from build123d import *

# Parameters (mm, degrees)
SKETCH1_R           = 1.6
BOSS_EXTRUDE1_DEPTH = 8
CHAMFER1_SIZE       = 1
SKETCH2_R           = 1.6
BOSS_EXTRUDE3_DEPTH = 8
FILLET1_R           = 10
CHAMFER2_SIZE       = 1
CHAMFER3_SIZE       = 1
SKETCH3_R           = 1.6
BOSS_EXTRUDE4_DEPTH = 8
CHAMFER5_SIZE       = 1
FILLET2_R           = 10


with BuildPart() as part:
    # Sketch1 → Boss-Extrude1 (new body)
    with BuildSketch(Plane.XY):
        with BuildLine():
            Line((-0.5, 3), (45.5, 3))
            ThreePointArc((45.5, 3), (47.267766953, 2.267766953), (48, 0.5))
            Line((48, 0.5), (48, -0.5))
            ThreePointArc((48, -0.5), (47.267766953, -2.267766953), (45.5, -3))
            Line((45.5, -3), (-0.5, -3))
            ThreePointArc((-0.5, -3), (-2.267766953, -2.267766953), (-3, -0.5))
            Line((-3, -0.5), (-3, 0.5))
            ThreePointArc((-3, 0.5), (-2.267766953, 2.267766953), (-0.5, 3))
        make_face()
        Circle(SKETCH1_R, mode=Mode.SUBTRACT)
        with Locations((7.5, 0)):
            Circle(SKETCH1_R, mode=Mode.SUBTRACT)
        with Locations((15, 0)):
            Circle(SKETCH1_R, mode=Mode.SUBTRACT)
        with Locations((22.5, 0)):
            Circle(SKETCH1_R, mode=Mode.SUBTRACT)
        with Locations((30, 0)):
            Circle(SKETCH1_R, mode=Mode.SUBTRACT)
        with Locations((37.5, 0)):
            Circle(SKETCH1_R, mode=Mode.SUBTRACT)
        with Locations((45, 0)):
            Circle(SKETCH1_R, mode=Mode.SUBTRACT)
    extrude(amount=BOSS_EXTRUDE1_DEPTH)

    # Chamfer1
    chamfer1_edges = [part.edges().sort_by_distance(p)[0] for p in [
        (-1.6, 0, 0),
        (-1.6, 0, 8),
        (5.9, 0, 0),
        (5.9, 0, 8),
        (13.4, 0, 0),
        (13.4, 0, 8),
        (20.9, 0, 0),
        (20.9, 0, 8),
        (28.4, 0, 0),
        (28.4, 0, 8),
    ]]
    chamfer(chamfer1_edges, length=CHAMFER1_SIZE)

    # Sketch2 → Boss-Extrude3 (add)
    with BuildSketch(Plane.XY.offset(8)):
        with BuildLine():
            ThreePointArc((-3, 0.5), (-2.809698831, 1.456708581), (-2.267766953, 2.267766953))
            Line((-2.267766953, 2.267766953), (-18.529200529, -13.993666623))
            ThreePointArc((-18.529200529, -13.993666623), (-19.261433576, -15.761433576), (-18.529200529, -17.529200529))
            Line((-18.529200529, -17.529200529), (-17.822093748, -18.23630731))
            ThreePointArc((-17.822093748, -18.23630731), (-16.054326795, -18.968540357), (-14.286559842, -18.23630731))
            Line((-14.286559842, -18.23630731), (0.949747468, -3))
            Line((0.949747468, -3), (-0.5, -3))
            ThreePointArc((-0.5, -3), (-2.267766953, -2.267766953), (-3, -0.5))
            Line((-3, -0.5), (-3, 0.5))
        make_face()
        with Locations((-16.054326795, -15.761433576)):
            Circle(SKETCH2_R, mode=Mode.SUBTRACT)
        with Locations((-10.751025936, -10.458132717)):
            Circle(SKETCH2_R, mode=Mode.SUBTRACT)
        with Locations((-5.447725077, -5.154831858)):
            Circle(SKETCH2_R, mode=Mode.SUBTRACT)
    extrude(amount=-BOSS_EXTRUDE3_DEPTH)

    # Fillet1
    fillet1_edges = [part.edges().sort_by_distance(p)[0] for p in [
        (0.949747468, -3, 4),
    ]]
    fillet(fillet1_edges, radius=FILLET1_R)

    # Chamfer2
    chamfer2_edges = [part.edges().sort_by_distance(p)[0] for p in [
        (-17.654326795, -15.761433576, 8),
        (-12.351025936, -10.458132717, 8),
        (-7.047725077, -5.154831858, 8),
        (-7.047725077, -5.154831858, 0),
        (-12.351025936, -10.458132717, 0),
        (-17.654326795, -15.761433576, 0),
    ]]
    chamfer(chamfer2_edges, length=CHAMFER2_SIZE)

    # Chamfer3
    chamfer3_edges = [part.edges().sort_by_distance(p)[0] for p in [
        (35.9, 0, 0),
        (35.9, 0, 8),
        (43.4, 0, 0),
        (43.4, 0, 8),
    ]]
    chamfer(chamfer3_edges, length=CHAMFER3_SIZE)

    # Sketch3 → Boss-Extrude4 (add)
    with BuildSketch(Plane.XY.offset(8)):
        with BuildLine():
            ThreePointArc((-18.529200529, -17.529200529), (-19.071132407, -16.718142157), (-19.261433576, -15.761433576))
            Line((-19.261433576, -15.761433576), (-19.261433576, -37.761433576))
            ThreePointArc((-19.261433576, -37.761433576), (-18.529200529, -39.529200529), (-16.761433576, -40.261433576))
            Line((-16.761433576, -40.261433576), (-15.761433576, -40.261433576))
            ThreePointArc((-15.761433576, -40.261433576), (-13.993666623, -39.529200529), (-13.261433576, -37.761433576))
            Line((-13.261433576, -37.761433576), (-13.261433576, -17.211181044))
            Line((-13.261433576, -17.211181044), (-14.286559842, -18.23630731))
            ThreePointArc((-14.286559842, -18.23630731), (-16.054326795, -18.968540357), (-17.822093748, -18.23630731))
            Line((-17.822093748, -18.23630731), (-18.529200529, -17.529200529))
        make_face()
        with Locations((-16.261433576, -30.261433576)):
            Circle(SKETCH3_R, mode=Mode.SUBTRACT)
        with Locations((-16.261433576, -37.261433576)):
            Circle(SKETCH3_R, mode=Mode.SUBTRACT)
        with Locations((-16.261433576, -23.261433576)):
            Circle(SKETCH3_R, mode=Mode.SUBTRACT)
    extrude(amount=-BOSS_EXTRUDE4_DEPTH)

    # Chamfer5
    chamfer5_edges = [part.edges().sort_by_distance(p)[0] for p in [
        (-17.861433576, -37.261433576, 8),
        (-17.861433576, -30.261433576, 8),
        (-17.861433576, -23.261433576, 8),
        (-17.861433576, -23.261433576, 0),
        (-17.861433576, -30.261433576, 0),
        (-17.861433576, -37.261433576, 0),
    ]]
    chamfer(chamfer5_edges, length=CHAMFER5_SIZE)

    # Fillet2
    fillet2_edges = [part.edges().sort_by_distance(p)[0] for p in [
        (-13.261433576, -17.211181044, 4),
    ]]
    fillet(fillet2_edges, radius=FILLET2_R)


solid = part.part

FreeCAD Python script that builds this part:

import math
import FreeCAD as App
import Part
import Sketcher
from FreeCAD import Vector
Q = App.Units.Quantity


def edges_at(feature, points):
    """Names of the edges that pass closest to the given points."""
    edges = feature.Shape.Edges
    near = lambda p: min(range(len(edges)), key=lambda i: edges[i].distToShape(Part.Vertex(*p))[0])
    return sorted({f"Edge{near(p) + 1}" for p in points})

doc = App.newDocument("Part")
params = doc.addObject("Spreadsheet::Sheet", "Params")
for row, (alias, value) in enumerate([
    ("sketch1_diameter", "3.2 mm"),
    ("sketch1_radius", "2.5 mm"),
    ("sketch1_width", "46 mm"),
    ("sketch1_height", "1 mm"),
    ("pad1_length", "8 mm"),
    ("chamfer_size", "1 mm"),
    ("sketch2_diameter", "3.2 mm"),
    ("sketch2_radius", "2.5 mm"),
    ("sketch2_height", "1 mm"),
    ("sketch2_length", "1 mm"),
    ("pad2_length", "8 mm"),
    ("fillet_radius", "10 mm"),
    ("chamfer2_size", "1 mm"),
    ("chamfer3_size", "1 mm"),
    ("sketch3_diameter", "3.2 mm"),
    ("sketch3_radius", "2.5 mm"),
    ("sketch3_width", "1 mm"),
    ("sketch3_height", "22 mm"),
    ("sketch3_length", "1 mm"),
    ("pad3_length", "8 mm"),
    ("chamfer4_size", "1 mm"),
    ("fillet2_radius", "10 mm"),
], start=1):
    params.set(f"A{row}", alias)
    params.set(f"B{row}", "=" + value)
    params.setAlias(f"B{row}", alias)

body = doc.addObject("PartDesign::Body", "Body")

# Sketch on XY plane
sketch1 = body.newObject("Sketcher::SketchObject", "Sketch")
sketch1.AttachmentSupport = (doc.getObject("XY_Plane"), [""])
sketch1.MapMode = "FlatFace"
sketch1.addGeometry(Part.LineSegment(Vector(45.5, 3, 0), Vector(-0.5, 3, 0)), False)
sketch1.addGeometry(Part.ArcOfCircle(Part.Circle(Vector(-0.5, 0.5, 0), Vector(0, 0, 1), 2.5), math.radians(90), math.radians(180)), False)
sketch1.addGeometry(Part.LineSegment(Vector(-3, 0.5, 0), Vector(-3, -0.5, 0)), False)
sketch1.addGeometry(Part.ArcOfCircle(Part.Circle(Vector(-0.5, -0.5, 0), Vector(0, 0, 1), 2.5), math.radians(180), math.radians(270)), False)
sketch1.addGeometry(Part.LineSegment(Vector(-0.5, -3, 0), Vector(45.5, -3, 0)), False)
sketch1.addGeometry(Part.ArcOfCircle(Part.Circle(Vector(45.5, -0.5, 0), Vector(0, 0, 1), 2.5), math.radians(-90), math.radians(0)), False)
sketch1.addGeometry(Part.LineSegment(Vector(48, -0.5, 0), Vector(48, 0.5, 0)), False)
sketch1.addGeometry(Part.ArcOfCircle(Part.Circle(Vector(45.5, 0.5, 0), Vector(0, 0, 1), 2.5), math.radians(0), math.radians(90)), False)
sketch1.addGeometry(Part.Circle(Vector(45, 0, 0), Vector(0, 0, 1), 1.6), False)
sketch1.addGeometry(Part.Circle(Vector(37.5, 0, 0), Vector(0, 0, 1), 1.6), False)
sketch1.addGeometry(Part.Circle(Vector(30, 0, 0), Vector(0, 0, 1), 1.6), False)
sketch1.addGeometry(Part.Circle(Vector(22.5, 0, 0), Vector(0, 0, 1), 1.6), False)
sketch1.addGeometry(Part.Circle(Vector(15, 0, 0), Vector(0, 0, 1), 1.6), False)
sketch1.addGeometry(Part.Circle(Vector(7.5, 0, 0), Vector(0, 0, 1), 1.6), False)
sketch1.addGeometry(Part.Circle(Vector(0, 0, 0), Vector(0, 0, 1), 1.6), False)
sketch1.addConstraint(Sketcher.Constraint("Tangent", 0, 2, 1, 1))
sketch1.addConstraint(Sketcher.Constraint("Tangent", 1, 2, 2, 1))
sketch1.addConstraint(Sketcher.Constraint("Tangent", 2, 2, 3, 1))
sketch1.addConstraint(Sketcher.Constraint("Tangent", 3, 2, 4, 1))
sketch1.addConstraint(Sketcher.Constraint("Tangent", 4, 2, 5, 1))
sketch1.addConstraint(Sketcher.Constraint("Tangent", 5, 2, 6, 1))
sketch1.addConstraint(Sketcher.Constraint("Tangent", 6, 2, 7, 1))
sketch1.addConstraint(Sketcher.Constraint("Tangent", 7, 2, 0, 1))
sketch1.addConstraint(Sketcher.Constraint("Horizontal", 0))
sketch1.addConstraint(Sketcher.Constraint("Vertical", 2))
sketch1.addConstraint(Sketcher.Constraint("Horizontal", 4))
sketch1.addConstraint(Sketcher.Constraint("Vertical", 6))
sketch1.addConstraint(Sketcher.Constraint("Coincident", 14, 3, -1, 1))
sketch1.addConstraint(Sketcher.Constraint("Equal", 1, 3))
sketch1.addConstraint(Sketcher.Constraint("Equal", 3, 5))
sketch1.addConstraint(Sketcher.Constraint("Equal", 5, 7))
sketch1.addConstraint(Sketcher.Constraint("Equal", 8, 9))
sketch1.addConstraint(Sketcher.Constraint("Equal", 9, 10))
sketch1.addConstraint(Sketcher.Constraint("Equal", 10, 11))
sketch1.addConstraint(Sketcher.Constraint("Equal", 11, 12))
sketch1.addConstraint(Sketcher.Constraint("Equal", 12, 13))
sketch1.addConstraint(Sketcher.Constraint("Equal", 13, 14))
sketch1.addConstraint(Sketcher.Constraint("PointOnObject", 8, 3, -1))
sketch1.addConstraint(Sketcher.Constraint("PointOnObject", 9, 3, -1))
sketch1.addConstraint(Sketcher.Constraint("PointOnObject", 10, 3, -1))
sketch1.addConstraint(Sketcher.Constraint("PointOnObject", 11, 3, -1))
sketch1.addConstraint(Sketcher.Constraint("PointOnObject", 12, 3, -1))
sketch1.addConstraint(Sketcher.Constraint("PointOnObject", 13, 3, -1))
sketch1.addConstraint(Sketcher.Constraint("Diameter", 8, Q("3.2 mm")))
sketch1.addConstraint(Sketcher.Constraint("Radius", 1, Q("2.5 mm")))
sketch1.addConstraint(Sketcher.Constraint("DistanceX", 0, 2, 0, 1, Q("46 mm")))
sketch1.addConstraint(Sketcher.Constraint("DistanceY", 2, 2, 2, 1, Q("1 mm")))
sketch1.addConstraint(Sketcher.Constraint("DistanceX", -1, 1, 8, 3, Q("45 mm")))
sketch1.addConstraint(Sketcher.Constraint("DistanceX", -1, 1, 10, 3, Q("30 mm")))
sketch1.addConstraint(Sketcher.Constraint("DistanceX", -1, 1, 12, 3, Q("15 mm")))
sketch1.addConstraint(Sketcher.Constraint("DistanceY", -1, 1, 0, 2, Q("3 mm")))
sketch1.addConstraint(Sketcher.Constraint("DistanceX", 1, 2, -1, 1, Q("3 mm")))
sketch1.addConstraint(Sketcher.Constraint("DistanceX", 9, 3, 5, 3, Q("8 mm")))
sketch1.addConstraint(Sketcher.Constraint("DistanceX", 11, 3, 9, 3, Q("15 mm")))
sketch1.addConstraint(Sketcher.Constraint("DistanceX", 1, 3, 13, 3, Q("8 mm")))
sketch1.setExpression("Constraints[28]", "Params.sketch1_diameter")
sketch1.setExpression("Constraints[29]", "Params.sketch1_radius")
sketch1.setExpression("Constraints[30]", "Params.sketch1_width")
sketch1.setExpression("Constraints[31]", "Params.sketch1_height")
pad1 = body.newObject("PartDesign::Pad", "Pad")
pad1.Profile = sketch1
pad1.setExpression("Length", "Params.pad1_length")
doc.recompute()

chamfer = body.newObject("PartDesign::Chamfer", "Chamfer")
chamfer.Base = (pad1, edges_at(pad1, [
    (-1.6, 0, 0),
    (-1.6, 0, 8),
    (5.9, 0, 0),
    (5.9, 0, 8),
    (13.4, 0, 0),
    (13.4, 0, 8),
    (20.9, 0, 0),
    (20.9, 0, 8),
    (28.4, 0, 0),
    (28.4, 0, 8),
]))
chamfer.setExpression("Size", "Params.chamfer_size")

# Sketch on XY plane
sketch2 = body.newObject("Sketcher::SketchObject", "Sketch001")
sketch2.AttachmentSupport = (doc.getObject("XY_Plane"), [""])
sketch2.MapMode = "FlatFace"
sketch2.AttachmentOffset = App.Placement(Vector(0, 0, 8), App.Rotation())
sketch2.addGeometry(Part.ArcOfCircle(Part.Circle(Vector(-0.5, 0.5, 0), Vector(0, 0, 1), 2.5), math.radians(135), math.radians(180)), False)
sketch2.addGeometry(Part.LineSegment(Vector(-2.3, 2.3, 0), Vector(-18.5, -14, 0)), False)
sketch2.addGeometry(Part.ArcOfCircle(Part.Circle(Vector(-16.8, -15.8, 0), Vector(0, 0, 1), 2.5), math.radians(135), math.radians(225)), False)
sketch2.addGeometry(Part.LineSegment(Vector(-18.5, -17.5, 0), Vector(-17.8, -18.2, 0)), False)
sketch2.addGeometry(Part.ArcOfCircle(Part.Circle(Vector(-16.1, -16.5, 0), Vector(0, 0, 1), 2.5), math.radians(-135), math.radians(-45)), False)
sketch2.addGeometry(Part.LineSegment(Vector(-14.3, -18.2, 0), Vector(0.9, -3, 0)), False)
sketch2.addGeometry(Part.LineSegment(Vector(0.9, -3, 0), Vector(-0.5, -3, 0)), False)
sketch2.addGeometry(Part.ArcOfCircle(Part.Circle(Vector(-0.5, -0.5, 0), Vector(0, 0, 1), 2.5), math.radians(180), math.radians(270)), False)
sketch2.addGeometry(Part.LineSegment(Vector(-3, -0.5, 0), Vector(-3, 0.5, 0)), False)
sketch2.addGeometry(Part.Circle(Vector(-16.1, -15.8, 0), Vector(0, 0, 1), 1.6), False)
sketch2.addGeometry(Part.Circle(Vector(-10.8, -10.5, 0), Vector(0, 0, 1), 1.6), False)
sketch2.addGeometry(Part.Circle(Vector(-5.4, -5.2, 0), Vector(0, 0, 1), 1.6), False)
sketch2.addConstraint(Sketcher.Constraint("Tangent", 0, 1, 1, 1))
sketch2.addConstraint(Sketcher.Constraint("Tangent", 1, 2, 2, 1))
sketch2.addConstraint(Sketcher.Constraint("Tangent", 2, 2, 3, 1))
sketch2.addConstraint(Sketcher.Constraint("Tangent", 3, 2, 4, 1))
sketch2.addConstraint(Sketcher.Constraint("Tangent", 4, 2, 5, 1))
sketch2.addConstraint(Sketcher.Constraint("Coincident", 5, 2, 6, 1))
sketch2.addConstraint(Sketcher.Constraint("Tangent", 6, 2, 7, 2))
sketch2.addConstraint(Sketcher.Constraint("Tangent", 7, 1, 8, 1))
sketch2.addConstraint(Sketcher.Constraint("Tangent", 8, 2, 0, 2))
sketch2.addConstraint(Sketcher.Constraint("Horizontal", 6))
sketch2.addConstraint(Sketcher.Constraint("Vertical", 8))
sketch2.addConstraint(Sketcher.Constraint("Equal", 0, 2))
sketch2.addConstraint(Sketcher.Constraint("Equal", 2, 4))
sketch2.addConstraint(Sketcher.Constraint("Equal", 4, 7))
sketch2.addConstraint(Sketcher.Constraint("Equal", 9, 10))
sketch2.addConstraint(Sketcher.Constraint("Equal", 10, 11))
sketch2.addConstraint(Sketcher.Constraint("Perpendicular", 1, 3))
sketch2.addConstraint(Sketcher.Constraint("Perpendicular", 3, 5))
sketch2.addConstraint(Sketcher.Constraint("Horizontal", 2, 3, 9, 3))
sketch2.addConstraint(Sketcher.Constraint("Horizontal", 3, 2, 4, 2))
sketch2.addConstraint(Sketcher.Constraint("Vertical", 4, 3, 9, 3))
sketch2.addConstraint(Sketcher.Constraint("Diameter", 9, Q("3.2 mm")))
sketch2.addConstraint(Sketcher.Constraint("Radius", 0, Q("2.5 mm")))
sketch2.addConstraint(Sketcher.Constraint("DistanceY", 8, 1, 8, 2, Q("1 mm")))
sketch2.addConstraint(Sketcher.Constraint("Distance", 3, Q("1 mm")))
sketch2.addConstraint(Sketcher.Constraint("DistanceY", 5, 2, -1, 1, Q("3 mm")))
sketch2.addConstraint(Sketcher.Constraint("DistanceX", 7, 1, -1, 1, Q("3 mm")))
sketch2.addConstraint(Sketcher.Constraint("DistanceX", 1, 2, -1, 1, Q("18.529201 mm")))
sketch2.addConstraint(Sketcher.Constraint("DistanceX", 9, 3, 10, 3, Q("5.303301 mm")))
sketch2.addConstraint(Sketcher.Constraint("DistanceY", 9, 3, 10, 3, Q("5.303301 mm")))
sketch2.addConstraint(Sketcher.Constraint("DistanceX", 10, 3, 11, 3, Q("5.303301 mm")))
sketch2.addConstraint(Sketcher.Constraint("DistanceY", 10, 3, 11, 3, Q("5.303301 mm")))
sketch2.setExpression("Constraints[21]", "Params.sketch2_diameter")
sketch2.setExpression("Constraints[22]", "Params.sketch2_radius")
sketch2.setExpression("Constraints[23]", "Params.sketch2_height")
sketch2.setExpression("Constraints[24]", "Params.sketch2_length")
pad2 = body.newObject("PartDesign::Pad", "Pad001")
pad2.Profile = sketch2
pad2.setExpression("Length", "Params.pad2_length")
pad2.Reversed = True
doc.recompute()

fillet = body.newObject("PartDesign::Fillet", "Fillet")
fillet.Base = (pad2, edges_at(pad2, [(0.95, -3, 4)]))
fillet.setExpression("Radius", "Params.fillet_radius")
doc.recompute()

chamfer2 = body.newObject("PartDesign::Chamfer", "Chamfer001")
chamfer2.Base = (fillet, edges_at(fillet, [
    (-17.654, -15.761, 8),
    (-12.351, -10.458, 8),
    (-7.048, -5.155, 8),
    (-7.048, -5.155, 0),
    (-12.351, -10.458, 0),
    (-17.654, -15.761, 0),
]))
chamfer2.setExpression("Size", "Params.chamfer2_size")
doc.recompute()

chamfer3 = body.newObject("PartDesign::Chamfer", "Chamfer002")
chamfer3.Base = (chamfer2, edges_at(chamfer2, [
    (35.9, 0, 0),
    (35.9, 0, 8),
    (43.4, 0, 0),
    (43.4, 0, 8),
]))
chamfer3.setExpression("Size", "Params.chamfer3_size")

# Sketch on XY plane
sketch3 = body.newObject("Sketcher::SketchObject", "Sketch002")
sketch3.AttachmentSupport = (doc.getObject("XY_Plane"), [""])
sketch3.MapMode = "FlatFace"
sketch3.AttachmentOffset = App.Placement(Vector(0, 0, 8), App.Rotation())
sketch3.addGeometry(Part.ArcOfCircle(Part.Circle(Vector(-16.8, -15.8, 0), Vector(0, 0, 1), 2.5), math.radians(-180), math.radians(-135)), False)
sketch3.addGeometry(Part.LineSegment(Vector(-19.3, -15.8, 0), Vector(-19.3, -37.8, 0)), False)
sketch3.addGeometry(Part.ArcOfCircle(Part.Circle(Vector(-16.8, -37.8, 0), Vector(0, 0, 1), 2.5), math.radians(180), math.radians(270)), False)
sketch3.addGeometry(Part.LineSegment(Vector(-16.8, -40.3, 0), Vector(-15.8, -40.3, 0)), False)
sketch3.addGeometry(Part.ArcOfCircle(Part.Circle(Vector(-15.8, -37.8, 0), Vector(0, 0, 1), 2.5), math.radians(-90), math.radians(0)), False)
sketch3.addGeometry(Part.LineSegment(Vector(-13.3, -37.8, 0), Vector(-13.3, -17.2, 0)), False)
sketch3.addGeometry(Part.LineSegment(Vector(-13.3, -17.2, 0), Vector(-14.3, -18.2, 0)), False)
sketch3.addGeometry(Part.ArcOfCircle(Part.Circle(Vector(-16.1, -16.5, 0), Vector(0, 0, 1), 2.5), math.radians(-135), math.radians(-45)), False)
sketch3.addGeometry(Part.LineSegment(Vector(-17.8, -18.2, 0), Vector(-18.5, -17.5, 0)), False)
sketch3.addGeometry(Part.Circle(Vector(-16.3, -37.3, 0), Vector(0, 0, 1), 1.6), False)
sketch3.addGeometry(Part.Circle(Vector(-16.3, -30.3, 0), Vector(0, 0, 1), 1.6), False)
sketch3.addGeometry(Part.Circle(Vector(-16.3, -23.3, 0), Vector(0, 0, 1), 1.6), False)
sketch3.addConstraint(Sketcher.Constraint("Tangent", 0, 1, 1, 1))
sketch3.addConstraint(Sketcher.Constraint("Tangent", 1, 2, 2, 1))
sketch3.addConstraint(Sketcher.Constraint("Tangent", 2, 2, 3, 1))
sketch3.addConstraint(Sketcher.Constraint("Tangent", 3, 2, 4, 1))
sketch3.addConstraint(Sketcher.Constraint("Tangent", 4, 2, 5, 1))
sketch3.addConstraint(Sketcher.Constraint("Coincident", 5, 2, 6, 1))
sketch3.addConstraint(Sketcher.Constraint("Tangent", 6, 2, 7, 2))
sketch3.addConstraint(Sketcher.Constraint("Tangent", 7, 1, 8, 1))
sketch3.addConstraint(Sketcher.Constraint("Tangent", 8, 2, 0, 2))
sketch3.addConstraint(Sketcher.Constraint("Vertical", 1))
sketch3.addConstraint(Sketcher.Constraint("Horizontal", 3))
sketch3.addConstraint(Sketcher.Constraint("Vertical", 5))
sketch3.addConstraint(Sketcher.Constraint("Equal", 0, 2))
sketch3.addConstraint(Sketcher.Constraint("Equal", 2, 4))
sketch3.addConstraint(Sketcher.Constraint("Equal", 4, 7))
sketch3.addConstraint(Sketcher.Constraint("Equal", 9, 10))
sketch3.addConstraint(Sketcher.Constraint("Equal", 10, 11))
sketch3.addConstraint(Sketcher.Constraint("Perpendicular", 6, 8))
sketch3.addConstraint(Sketcher.Constraint("Horizontal", 6, 2, 7, 1))
sketch3.addConstraint(Sketcher.Constraint("Vertical", 9, 3, 10, 3))
sketch3.addConstraint(Sketcher.Constraint("Vertical", 10, 3, 11, 3))
sketch3.addConstraint(Sketcher.Constraint("Diameter", 9, Q("3.2 mm")))
sketch3.addConstraint(Sketcher.Constraint("Radius", 0, Q("2.5 mm")))
sketch3.addConstraint(Sketcher.Constraint("DistanceX", 3, 1, 3, 2, Q("1 mm")))
sketch3.addConstraint(Sketcher.Constraint("DistanceY", 1, 2, 1, 1, Q("22 mm")))
sketch3.addConstraint(Sketcher.Constraint("Distance", 8, Q("1 mm")))
sketch3.addConstraint(Sketcher.Constraint("DistanceY", 9, 3, 10, 3, Q("7 mm")))
sketch3.addConstraint(Sketcher.Constraint("DistanceY", 10, 3, 11, 3, Q("7 mm")))
sketch3.addConstraint(Sketcher.Constraint("DistanceX", 0, 1, 11, 3, Q("3 mm")))
sketch3.addConstraint(Sketcher.Constraint("DistanceY", 2, 2, 9, 3, Q("3 mm")))
sketch3.addConstraint(Sketcher.Constraint("DistanceX", 8, 2, -1, 1, Q("18.529201 mm")))
sketch3.addConstraint(Sketcher.Constraint("DistanceY", 8, 2, -1, 1, Q("17.529201 mm")))
sketch3.setExpression("Constraints[21]", "Params.sketch3_diameter")
sketch3.setExpression("Constraints[22]", "Params.sketch3_radius")
sketch3.setExpression("Constraints[23]", "Params.sketch3_width")
sketch3.setExpression("Constraints[24]", "Params.sketch3_height")
sketch3.setExpression("Constraints[25]", "Params.sketch3_length")
pad3 = body.newObject("PartDesign::Pad", "Pad002")
pad3.Profile = sketch3
pad3.setExpression("Length", "Params.pad3_length")
pad3.Reversed = True
doc.recompute()

chamfer4 = body.newObject("PartDesign::Chamfer", "Chamfer003")
chamfer4.Base = (pad3, edges_at(pad3, [
    (-17.861, -37.261, 8),
    (-17.861, -30.261, 8),
    (-17.861, -23.261, 8),
    (-17.861, -23.261, 0),
    (-17.861, -30.261, 0),
    (-17.861, -37.261, 0),
]))
chamfer4.setExpression("Size", "Params.chamfer4_size")
doc.recompute()

fillet2 = body.newObject("PartDesign::Fillet", "Fillet001")
fillet2.Base = (chamfer4, edges_at(chamfer4, [(-13.261, -17.211, 4)]))
fillet2.setExpression("Radius", "Params.fillet2_radius")

doc.recompute()
